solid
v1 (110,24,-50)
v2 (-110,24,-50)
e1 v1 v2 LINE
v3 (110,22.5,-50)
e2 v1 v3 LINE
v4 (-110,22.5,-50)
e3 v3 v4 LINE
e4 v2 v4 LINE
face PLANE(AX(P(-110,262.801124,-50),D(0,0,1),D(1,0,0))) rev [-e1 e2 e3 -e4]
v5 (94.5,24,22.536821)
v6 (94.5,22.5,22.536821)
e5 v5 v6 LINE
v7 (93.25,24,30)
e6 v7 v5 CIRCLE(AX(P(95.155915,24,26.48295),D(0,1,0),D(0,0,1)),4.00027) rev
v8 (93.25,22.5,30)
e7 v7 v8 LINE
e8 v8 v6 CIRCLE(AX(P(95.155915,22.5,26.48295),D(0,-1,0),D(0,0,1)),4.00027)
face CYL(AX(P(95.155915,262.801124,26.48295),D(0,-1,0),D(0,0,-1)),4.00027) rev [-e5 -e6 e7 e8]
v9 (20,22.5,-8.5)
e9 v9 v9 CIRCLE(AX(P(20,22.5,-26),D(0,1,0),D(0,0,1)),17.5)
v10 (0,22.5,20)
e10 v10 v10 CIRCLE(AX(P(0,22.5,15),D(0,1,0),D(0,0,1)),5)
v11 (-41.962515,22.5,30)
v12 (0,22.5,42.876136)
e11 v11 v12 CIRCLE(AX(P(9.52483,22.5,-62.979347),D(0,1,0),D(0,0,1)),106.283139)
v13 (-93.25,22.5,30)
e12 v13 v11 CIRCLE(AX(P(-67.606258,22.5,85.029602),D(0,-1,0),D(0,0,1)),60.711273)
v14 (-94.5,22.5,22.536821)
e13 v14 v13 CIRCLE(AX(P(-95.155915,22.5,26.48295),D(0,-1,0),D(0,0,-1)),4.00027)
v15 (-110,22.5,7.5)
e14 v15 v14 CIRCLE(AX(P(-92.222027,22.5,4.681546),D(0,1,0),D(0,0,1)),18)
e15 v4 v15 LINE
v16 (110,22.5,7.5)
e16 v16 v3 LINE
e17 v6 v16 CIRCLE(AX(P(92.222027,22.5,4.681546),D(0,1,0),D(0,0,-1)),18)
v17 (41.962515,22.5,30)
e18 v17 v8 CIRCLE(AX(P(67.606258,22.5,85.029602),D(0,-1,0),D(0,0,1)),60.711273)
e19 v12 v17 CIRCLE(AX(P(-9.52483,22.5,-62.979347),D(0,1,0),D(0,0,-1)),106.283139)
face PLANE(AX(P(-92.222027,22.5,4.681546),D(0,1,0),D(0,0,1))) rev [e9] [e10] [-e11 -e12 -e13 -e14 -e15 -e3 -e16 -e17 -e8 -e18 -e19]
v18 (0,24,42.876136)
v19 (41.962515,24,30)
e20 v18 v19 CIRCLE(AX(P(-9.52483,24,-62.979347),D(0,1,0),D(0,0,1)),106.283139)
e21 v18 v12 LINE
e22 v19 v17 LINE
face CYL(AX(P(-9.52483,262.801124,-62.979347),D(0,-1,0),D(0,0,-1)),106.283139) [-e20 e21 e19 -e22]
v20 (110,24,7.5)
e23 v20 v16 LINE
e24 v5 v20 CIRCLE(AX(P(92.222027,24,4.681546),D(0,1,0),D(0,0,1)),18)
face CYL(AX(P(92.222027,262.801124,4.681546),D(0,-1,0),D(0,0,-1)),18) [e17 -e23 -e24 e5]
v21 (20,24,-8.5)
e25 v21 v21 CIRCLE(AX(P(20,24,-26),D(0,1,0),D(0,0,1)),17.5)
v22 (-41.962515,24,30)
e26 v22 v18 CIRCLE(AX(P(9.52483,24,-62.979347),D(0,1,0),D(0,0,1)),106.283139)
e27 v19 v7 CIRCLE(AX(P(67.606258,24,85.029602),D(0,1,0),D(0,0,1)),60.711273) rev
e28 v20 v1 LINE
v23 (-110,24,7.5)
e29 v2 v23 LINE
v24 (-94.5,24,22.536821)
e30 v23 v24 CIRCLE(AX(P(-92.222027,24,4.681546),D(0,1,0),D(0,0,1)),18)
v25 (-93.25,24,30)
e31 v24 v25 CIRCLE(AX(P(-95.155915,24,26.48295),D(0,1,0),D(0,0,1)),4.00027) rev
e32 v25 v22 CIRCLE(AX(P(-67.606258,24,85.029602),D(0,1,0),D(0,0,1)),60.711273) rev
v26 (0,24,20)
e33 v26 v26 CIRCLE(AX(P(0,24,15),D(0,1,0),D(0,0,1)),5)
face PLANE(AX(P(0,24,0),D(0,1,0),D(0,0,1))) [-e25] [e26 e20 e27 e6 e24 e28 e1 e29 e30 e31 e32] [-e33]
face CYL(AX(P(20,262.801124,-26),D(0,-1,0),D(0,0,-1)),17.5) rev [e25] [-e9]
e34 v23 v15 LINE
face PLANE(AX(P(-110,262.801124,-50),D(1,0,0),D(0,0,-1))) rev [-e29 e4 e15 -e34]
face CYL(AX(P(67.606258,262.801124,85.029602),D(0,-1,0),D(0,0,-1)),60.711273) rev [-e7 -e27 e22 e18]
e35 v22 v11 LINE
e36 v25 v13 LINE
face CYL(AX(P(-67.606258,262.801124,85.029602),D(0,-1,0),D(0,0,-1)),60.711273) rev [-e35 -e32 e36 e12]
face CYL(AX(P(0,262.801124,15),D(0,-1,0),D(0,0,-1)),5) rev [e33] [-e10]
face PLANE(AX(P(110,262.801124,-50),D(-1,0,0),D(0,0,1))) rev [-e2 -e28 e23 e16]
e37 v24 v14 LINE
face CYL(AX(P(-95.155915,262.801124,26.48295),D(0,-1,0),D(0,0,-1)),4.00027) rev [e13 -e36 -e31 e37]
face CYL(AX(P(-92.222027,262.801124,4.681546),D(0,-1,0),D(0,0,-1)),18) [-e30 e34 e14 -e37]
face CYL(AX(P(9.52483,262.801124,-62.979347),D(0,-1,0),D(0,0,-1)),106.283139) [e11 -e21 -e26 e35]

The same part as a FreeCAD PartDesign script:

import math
import FreeCAD as App
import Part
import Sketcher

V = App.Vector
Q = App.Units.Quantity

doc = App.newDocument("Part")
body = doc.addObject("PartDesign::Body", "Body")

sketch1 = body.newObject("Sketcher::SketchObject", "Sketch")
sketch1.AttachmentSupport = (doc.getObject("XZ_Plane"), [""])
sketch1.MapMode = "FlatFace"
sketch1.AttachmentOffset = App.Placement(V(0, 0, -22.5), App.Rotation())
sketch1.addGeometry([
    Part.LineSegment(V(110, -50, 0), V(-110, -50, 0)),
    Part.LineSegment(V(-110, -50, 0), V(-110, 7.5, 0)),
    Part.ArcOfCircle(Part.Circle(V(-92.222027, 4.681546, 0), V(0, 0, 1), 18), math.radians(97.270509), math.radians(170.991513)),
    Part.ArcOfCircle(Part.Circle(V(-95.155915, 26.48295, 0), V(0, 0, 1), 4.00027), math.radians(-80.562722), math.radians(61.54641)),
    Part.ArcOfCircle(Part.Circle(V(-67.606258, 85.029602, 0), V(0, 0, 1), 60.711273), math.radians(-114.985474), math.radians(-65.014526)),
    Part.ArcOfCircle(Part.Circle(V(9.52483, -62.979347, 0), V(0, 0, 1), 106.283139), math.radians(95.141603), math.radians(118.975507)),
    Part.ArcOfCircle(Part.Circle(V(-9.52483, -62.979347, 0), V(0, 0, 1), 106.283139), math.radians(61.024493), math.radians(84.858397)),
    Part.ArcOfCircle(Part.Circle(V(67.606258, 85.029602, 0), V(0, 0, 1), 60.711273), math.radians(-114.985474), math.radians(-65.014526)),
    Part.ArcOfCircle(Part.Circle(V(95.155915, 26.48295, 0), V(0, 0, 1), 4.00027), math.radians(118.45359), math.radians(260.562722)),
    Part.ArcOfCircle(Part.Circle(V(92.222027, 4.681546, 0), V(0, 0, 1), 18), math.radians(9.008487), math.radians(82.729491)),
    Part.LineSegment(V(110, 7.5, 0), V(110, -50, 0)),
    Part.Circle(V(0, 15, 0), V(0, 0, 1), 5),
    Part.Circle(V(20, -26, 0), V(0, 0, 1), 17.5),
], False)
sketch1.addConstraint([
    Sketcher.Constraint("Coincident", 0, 2, 1, 1),
    Sketcher.Constraint("Coincident", 1, 2, 2, 2),
    Sketcher.Constraint("Coincident", 2, 1, 3, 1),
    Sketcher.Constraint("Coincident", 3, 2, 4, 1),
    Sketcher.Constraint("Coincident", 4, 2, 5, 2),
    Sketcher.Constraint("Coincident", 5, 1, 6, 2),
    Sketcher.Constraint("Coincident", 6, 1, 7, 1),
    Sketcher.Constraint("Coincident", 7, 2, 8, 1),
    Sketcher.Constraint("Coincident", 8, 2, 9, 2),
    Sketcher.Constraint("Coincident", 9, 1, 10, 1),
    Sketcher.Constraint("Coincident", 10, 2, 0, 1),
    Sketcher.Constraint("Horizontal", 0),
    Sketcher.Constraint("Vertical", 1),
    Sketcher.Constraint("Vertical", 10),
    Sketcher.Constraint("Equal", 5, 6),
    Sketcher.Constraint("Equal", 4, 7),
    Sketcher.Constraint("Equal", 3, 8),
    Sketcher.Constraint("Equal", 2, 9),
    Sketcher.Constraint("Symmetric", 5, 3, 6, 3, -2),
    Sketcher.Constraint("Symmetric", 4, 3, 7, 3, -2),
    Sketcher.Constraint("Symmetric", 3, 3, 8, 3, -2),
    Sketcher.Constraint("Symmetric", 2, 3, 9, 3, -2),
    Sketcher.Constraint("PointOnObject", 11, 3, -2),
    Sketcher.Constraint("Horizontal", 3, 2, 4, 2),
    Sketcher.Constraint("Horizontal", 1, 2, 9, 1),
    Sketcher.Constraint("Diameter", 11, Q("10 mm")),
    Sketcher.Constraint("Diameter", 12, Q("35 mm")),
    Sketcher.Constraint("Radius", 2, Q("18 mm")),
    Sketcher.Constraint("DistanceX", 0, 2, 0, 1, Q("220 mm")),
    Sketcher.Constraint("DistanceY", 1, 1, 1, 2, Q("57.5 mm")),
    Sketcher.Constraint("DistanceY", -1, 1, 11, 3, Q("15 mm")),
    Sketcher.Constraint("DistanceX", -1, 1, 12, 3, Q("20 mm")),
    Sketcher.Constraint("DistanceY", 12, 3, -1, 1, Q("26 mm")),
    Sketcher.Constraint("DistanceY", 0, 2, -1, 1, Q("50 mm")),
    Sketcher.Constraint("DistanceY", -1, 1, 3, 2, Q("30 mm")),
    Sketcher.Constraint("DistanceX", 2, 1, -1, 1, Q("94.5 mm")),
    Sketcher.Constraint("DistanceX", 3, 2, -1, 1, Q("93.25 mm")),
    Sketcher.Constraint("Radius", 3, Q("4.00027 mm")),
    Sketcher.Constraint("Radius", 5, Q("106.283139 mm")),
    Sketcher.Constraint("Radius", 4, Q("60.711273 mm")),
    Sketcher.Constraint("DistanceX", 3, 3, 4, 2, Q("53.1934 mm")),
    Sketcher.Constraint("DistanceY", -1, 1, 3, 3, Q("26.48295 mm")),
    Sketcher.Constraint("DistanceX", -1, 1, 5, 3, Q("9.52483 mm")),
])
pad1 = body.newObject("PartDesign::Pad", "Pad")
pad1.Profile = sketch1
pad1.Length = 1.5
pad1.Reversed = True

doc.recompute()
